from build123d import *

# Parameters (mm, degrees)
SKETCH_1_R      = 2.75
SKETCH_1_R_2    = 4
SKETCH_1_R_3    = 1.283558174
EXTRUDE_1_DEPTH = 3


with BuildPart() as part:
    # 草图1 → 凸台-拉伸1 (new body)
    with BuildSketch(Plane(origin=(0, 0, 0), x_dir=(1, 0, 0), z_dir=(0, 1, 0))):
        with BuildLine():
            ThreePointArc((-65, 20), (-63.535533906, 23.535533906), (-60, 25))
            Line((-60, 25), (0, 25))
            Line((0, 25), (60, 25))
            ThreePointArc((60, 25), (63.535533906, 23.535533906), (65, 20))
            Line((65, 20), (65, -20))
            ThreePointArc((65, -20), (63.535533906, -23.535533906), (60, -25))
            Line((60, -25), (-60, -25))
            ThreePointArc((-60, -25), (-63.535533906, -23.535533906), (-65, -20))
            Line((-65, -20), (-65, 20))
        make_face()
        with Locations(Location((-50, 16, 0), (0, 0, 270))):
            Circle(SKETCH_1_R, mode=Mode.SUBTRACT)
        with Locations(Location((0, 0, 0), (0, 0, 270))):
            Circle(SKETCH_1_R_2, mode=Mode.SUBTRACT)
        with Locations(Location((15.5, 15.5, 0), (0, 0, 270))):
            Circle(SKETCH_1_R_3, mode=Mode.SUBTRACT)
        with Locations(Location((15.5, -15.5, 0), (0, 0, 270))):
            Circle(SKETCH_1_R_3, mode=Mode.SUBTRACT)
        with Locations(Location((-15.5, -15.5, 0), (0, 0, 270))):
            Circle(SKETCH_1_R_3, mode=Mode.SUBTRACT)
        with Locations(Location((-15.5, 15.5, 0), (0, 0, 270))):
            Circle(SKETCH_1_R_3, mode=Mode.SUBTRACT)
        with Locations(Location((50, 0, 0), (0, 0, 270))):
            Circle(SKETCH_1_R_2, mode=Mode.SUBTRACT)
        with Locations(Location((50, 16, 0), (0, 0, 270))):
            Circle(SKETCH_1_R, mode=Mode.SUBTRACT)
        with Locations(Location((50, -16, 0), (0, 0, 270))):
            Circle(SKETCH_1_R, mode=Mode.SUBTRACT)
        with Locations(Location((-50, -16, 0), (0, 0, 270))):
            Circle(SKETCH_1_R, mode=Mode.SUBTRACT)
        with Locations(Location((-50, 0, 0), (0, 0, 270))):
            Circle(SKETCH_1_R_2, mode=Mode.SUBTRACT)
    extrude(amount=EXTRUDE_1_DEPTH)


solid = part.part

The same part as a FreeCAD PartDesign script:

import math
import FreeCAD as App
import Part
import Sketcher
from FreeCAD import Vector

doc = App.newDocument("Part")
body = doc.addObject("PartDesign::Body", "Body")

sketch1 = body.newObject("Sketcher::SketchObject", "Sketch")
sketch1.AttachmentSupport = (doc.getObject("XZ_Plane"), [""])
sketch1.MapMode = "FlatFace"
sketch1.addGeometry([
    Part.ArcOfCircle(Part.Circle(Vector(-60, -20, 0), Vector(0, 0, 1), 5), math.radians(180), math.radians(270)),
    Part.LineSegment(Vector(-65, -20, 0), Vector(-65, 20, 0)),
    Part.ArcOfCircle(Part.Circle(Vector(-60, 20, 0), Vector(0, 0, 1), 5), math.radians(90), math.radians(180)),
    Part.LineSegment(Vector(-60, 25, 0), Vector(60, 25, 0)),
    Part.ArcOfCircle(Part.Circle(Vector(60, 20, 0), Vector(0, 0, 1), 5), math.radians(0), math.radians(90)),
    Part.LineSegment(Vector(65, 20, 0), Vector(65, -20, 0)),
    Part.ArcOfCircle(Part.Circle(Vector(60, -20, 0), Vector(0, 0, 1), 5), math.radians(-90), math.radians(0)),
    Part.LineSegment(Vector(60, -25, 0), Vector(-60, -25, 0)),
    Part.Circle(Vector(50, 16, 0), Vector(0, 0, 1), 2.8),
    Part.Circle(Vector(15.5, 15.5, 0), Vector(0, 0, 1), 1.3),
    Part.Circle(Vector(-15.5, 15.5, 0), Vector(0, 0, 1), 1.3),
    Part.Circle(Vector(-50, 16, 0), Vector(0, 0, 1), 2.8),
    Part.Circle(Vector(50, 0, 0), Vector(0, 0, 1), 4),
    Part.Circle(Vector(50, -16, 0), Vector(0, 0, 1), 2.8),
    Part.Circle(Vector(15.5, -15.5, 0), Vector(0, 0, 1), 1.3),
    Part.Circle(Vector(0, 0, 0), Vector(0, 0, 1), 4),
    Part.Circle(Vector(-50, 0, 0), Vector(0, 0, 1), 4),
    Part.Circle(Vector(-15.5, -15.5, 0), Vector(0, 0, 1), 1.3),
    Part.Circle(Vector(-50, -16, 0), Vector(0, 0, 1), 2.8),
], False)
sketch1.addConstraint([
    Sketcher.Constraint("Tangent", 0, 1, 1, 1),
    Sketcher.Constraint("Tangent", 1, 2, 2, 2),
    Sketcher.Constraint("Tangent", 2, 1, 3, 1),
    Sketcher.Constraint("Tangent", 3, 2, 4, 2),
    Sketcher.Constraint("Tangent", 4, 1, 5, 1),
    Sketcher.Constraint("Tangent", 5, 2, 6, 2),
    Sketcher.Constraint("Tangent", 6, 1, 7, 1),
    Sketcher.Constraint("Tangent", 7, 2, 0, 2),
    Sketcher.Constraint("Vertical", 1),
    Sketcher.Constraint("Horizontal", 3),
    Sketcher.Constraint("Vertical", 5),
    Sketcher.Constraint("Horizontal", 7),
    Sketcher.Constraint("Coincident", 15, 3, -1, 1),
    Sketcher.Constraint("Equal", 0, 2),
    Sketcher.Constraint("Equal", 2, 4),
    Sketcher.Constraint("Equal", 4, 6),
    Sketcher.Constraint("Equal", 9, 10),
    Sketcher.Constraint("Equal", 8, 11),
    Sketcher.Constraint("Equal", 11, 13),
    Sketcher.Constraint("Equal", 10, 14),
    Sketcher.Constraint("Equal", 12, 15),
    Sketcher.Constraint("Equal", 15, 16),
    Sketcher.Constraint("Equal", 14, 17),
    Sketcher.Constraint("Equal", 13, 18),
    Sketcher.Constraint("Symmetric", 0, 3, 4, 3, -1, 1),
    Sketcher.Constraint("Symmetric", 11, 3, 13, 3, -1, 1),
    Sketcher.Constraint("Symmetric", 10, 3, 14, 3, -1, 1),
    Sketcher.Constraint("Symmetric", 12, 3, 16, 3, -1, 1),
    Sketcher.Constraint("Symmetric", 9, 3, 17, 3, -1, 1),
    Sketcher.Constraint("Symmetric", 8, 3, 18, 3, -1, 1),
    Sketcher.Constraint("Symmetric", 9, 3, 10, 3, -2),
    Sketcher.Constraint("Symmetric", 8, 3, 11, 3, -2),
    Sketcher.Constraint("PointOnObject", 12, 3, -1),
    Sketcher.Constraint("Vertical", 8, 3, 12, 3),
    Sketcher.Constraint("Diameter", 12, 8.0),
    Sketcher.Constraint("Radius", 0, 5.0),
    Sketcher.Constraint("Diameter", 8, 5.5),
    Sketcher.Constraint("DistanceX", 3, 1, 3, 2, 120.0),
    Sketcher.Constraint("DistanceY", 1, 1, 1, 2, 40.0),
    Sketcher.Constraint("DistanceX", -1, 1, 8, 3, 50.0),
    Sketcher.Constraint("DistanceY", -1, 1, 8, 3, 16.0),
    Sketcher.Constraint("DistanceX", 10, 3, 9, 3, 31.0),
    Sketcher.Constraint("DistanceY", 14, 3, 9, 3, 31.0),
    Sketcher.Constraint("Diameter", 9, 2.567116),
])
pad1 = body.newObject("PartDesign::Pad", "Pad")
pad1.Profile = sketch1
pad1.Length = 3
pad1.Reversed = True

doc.recompute()
